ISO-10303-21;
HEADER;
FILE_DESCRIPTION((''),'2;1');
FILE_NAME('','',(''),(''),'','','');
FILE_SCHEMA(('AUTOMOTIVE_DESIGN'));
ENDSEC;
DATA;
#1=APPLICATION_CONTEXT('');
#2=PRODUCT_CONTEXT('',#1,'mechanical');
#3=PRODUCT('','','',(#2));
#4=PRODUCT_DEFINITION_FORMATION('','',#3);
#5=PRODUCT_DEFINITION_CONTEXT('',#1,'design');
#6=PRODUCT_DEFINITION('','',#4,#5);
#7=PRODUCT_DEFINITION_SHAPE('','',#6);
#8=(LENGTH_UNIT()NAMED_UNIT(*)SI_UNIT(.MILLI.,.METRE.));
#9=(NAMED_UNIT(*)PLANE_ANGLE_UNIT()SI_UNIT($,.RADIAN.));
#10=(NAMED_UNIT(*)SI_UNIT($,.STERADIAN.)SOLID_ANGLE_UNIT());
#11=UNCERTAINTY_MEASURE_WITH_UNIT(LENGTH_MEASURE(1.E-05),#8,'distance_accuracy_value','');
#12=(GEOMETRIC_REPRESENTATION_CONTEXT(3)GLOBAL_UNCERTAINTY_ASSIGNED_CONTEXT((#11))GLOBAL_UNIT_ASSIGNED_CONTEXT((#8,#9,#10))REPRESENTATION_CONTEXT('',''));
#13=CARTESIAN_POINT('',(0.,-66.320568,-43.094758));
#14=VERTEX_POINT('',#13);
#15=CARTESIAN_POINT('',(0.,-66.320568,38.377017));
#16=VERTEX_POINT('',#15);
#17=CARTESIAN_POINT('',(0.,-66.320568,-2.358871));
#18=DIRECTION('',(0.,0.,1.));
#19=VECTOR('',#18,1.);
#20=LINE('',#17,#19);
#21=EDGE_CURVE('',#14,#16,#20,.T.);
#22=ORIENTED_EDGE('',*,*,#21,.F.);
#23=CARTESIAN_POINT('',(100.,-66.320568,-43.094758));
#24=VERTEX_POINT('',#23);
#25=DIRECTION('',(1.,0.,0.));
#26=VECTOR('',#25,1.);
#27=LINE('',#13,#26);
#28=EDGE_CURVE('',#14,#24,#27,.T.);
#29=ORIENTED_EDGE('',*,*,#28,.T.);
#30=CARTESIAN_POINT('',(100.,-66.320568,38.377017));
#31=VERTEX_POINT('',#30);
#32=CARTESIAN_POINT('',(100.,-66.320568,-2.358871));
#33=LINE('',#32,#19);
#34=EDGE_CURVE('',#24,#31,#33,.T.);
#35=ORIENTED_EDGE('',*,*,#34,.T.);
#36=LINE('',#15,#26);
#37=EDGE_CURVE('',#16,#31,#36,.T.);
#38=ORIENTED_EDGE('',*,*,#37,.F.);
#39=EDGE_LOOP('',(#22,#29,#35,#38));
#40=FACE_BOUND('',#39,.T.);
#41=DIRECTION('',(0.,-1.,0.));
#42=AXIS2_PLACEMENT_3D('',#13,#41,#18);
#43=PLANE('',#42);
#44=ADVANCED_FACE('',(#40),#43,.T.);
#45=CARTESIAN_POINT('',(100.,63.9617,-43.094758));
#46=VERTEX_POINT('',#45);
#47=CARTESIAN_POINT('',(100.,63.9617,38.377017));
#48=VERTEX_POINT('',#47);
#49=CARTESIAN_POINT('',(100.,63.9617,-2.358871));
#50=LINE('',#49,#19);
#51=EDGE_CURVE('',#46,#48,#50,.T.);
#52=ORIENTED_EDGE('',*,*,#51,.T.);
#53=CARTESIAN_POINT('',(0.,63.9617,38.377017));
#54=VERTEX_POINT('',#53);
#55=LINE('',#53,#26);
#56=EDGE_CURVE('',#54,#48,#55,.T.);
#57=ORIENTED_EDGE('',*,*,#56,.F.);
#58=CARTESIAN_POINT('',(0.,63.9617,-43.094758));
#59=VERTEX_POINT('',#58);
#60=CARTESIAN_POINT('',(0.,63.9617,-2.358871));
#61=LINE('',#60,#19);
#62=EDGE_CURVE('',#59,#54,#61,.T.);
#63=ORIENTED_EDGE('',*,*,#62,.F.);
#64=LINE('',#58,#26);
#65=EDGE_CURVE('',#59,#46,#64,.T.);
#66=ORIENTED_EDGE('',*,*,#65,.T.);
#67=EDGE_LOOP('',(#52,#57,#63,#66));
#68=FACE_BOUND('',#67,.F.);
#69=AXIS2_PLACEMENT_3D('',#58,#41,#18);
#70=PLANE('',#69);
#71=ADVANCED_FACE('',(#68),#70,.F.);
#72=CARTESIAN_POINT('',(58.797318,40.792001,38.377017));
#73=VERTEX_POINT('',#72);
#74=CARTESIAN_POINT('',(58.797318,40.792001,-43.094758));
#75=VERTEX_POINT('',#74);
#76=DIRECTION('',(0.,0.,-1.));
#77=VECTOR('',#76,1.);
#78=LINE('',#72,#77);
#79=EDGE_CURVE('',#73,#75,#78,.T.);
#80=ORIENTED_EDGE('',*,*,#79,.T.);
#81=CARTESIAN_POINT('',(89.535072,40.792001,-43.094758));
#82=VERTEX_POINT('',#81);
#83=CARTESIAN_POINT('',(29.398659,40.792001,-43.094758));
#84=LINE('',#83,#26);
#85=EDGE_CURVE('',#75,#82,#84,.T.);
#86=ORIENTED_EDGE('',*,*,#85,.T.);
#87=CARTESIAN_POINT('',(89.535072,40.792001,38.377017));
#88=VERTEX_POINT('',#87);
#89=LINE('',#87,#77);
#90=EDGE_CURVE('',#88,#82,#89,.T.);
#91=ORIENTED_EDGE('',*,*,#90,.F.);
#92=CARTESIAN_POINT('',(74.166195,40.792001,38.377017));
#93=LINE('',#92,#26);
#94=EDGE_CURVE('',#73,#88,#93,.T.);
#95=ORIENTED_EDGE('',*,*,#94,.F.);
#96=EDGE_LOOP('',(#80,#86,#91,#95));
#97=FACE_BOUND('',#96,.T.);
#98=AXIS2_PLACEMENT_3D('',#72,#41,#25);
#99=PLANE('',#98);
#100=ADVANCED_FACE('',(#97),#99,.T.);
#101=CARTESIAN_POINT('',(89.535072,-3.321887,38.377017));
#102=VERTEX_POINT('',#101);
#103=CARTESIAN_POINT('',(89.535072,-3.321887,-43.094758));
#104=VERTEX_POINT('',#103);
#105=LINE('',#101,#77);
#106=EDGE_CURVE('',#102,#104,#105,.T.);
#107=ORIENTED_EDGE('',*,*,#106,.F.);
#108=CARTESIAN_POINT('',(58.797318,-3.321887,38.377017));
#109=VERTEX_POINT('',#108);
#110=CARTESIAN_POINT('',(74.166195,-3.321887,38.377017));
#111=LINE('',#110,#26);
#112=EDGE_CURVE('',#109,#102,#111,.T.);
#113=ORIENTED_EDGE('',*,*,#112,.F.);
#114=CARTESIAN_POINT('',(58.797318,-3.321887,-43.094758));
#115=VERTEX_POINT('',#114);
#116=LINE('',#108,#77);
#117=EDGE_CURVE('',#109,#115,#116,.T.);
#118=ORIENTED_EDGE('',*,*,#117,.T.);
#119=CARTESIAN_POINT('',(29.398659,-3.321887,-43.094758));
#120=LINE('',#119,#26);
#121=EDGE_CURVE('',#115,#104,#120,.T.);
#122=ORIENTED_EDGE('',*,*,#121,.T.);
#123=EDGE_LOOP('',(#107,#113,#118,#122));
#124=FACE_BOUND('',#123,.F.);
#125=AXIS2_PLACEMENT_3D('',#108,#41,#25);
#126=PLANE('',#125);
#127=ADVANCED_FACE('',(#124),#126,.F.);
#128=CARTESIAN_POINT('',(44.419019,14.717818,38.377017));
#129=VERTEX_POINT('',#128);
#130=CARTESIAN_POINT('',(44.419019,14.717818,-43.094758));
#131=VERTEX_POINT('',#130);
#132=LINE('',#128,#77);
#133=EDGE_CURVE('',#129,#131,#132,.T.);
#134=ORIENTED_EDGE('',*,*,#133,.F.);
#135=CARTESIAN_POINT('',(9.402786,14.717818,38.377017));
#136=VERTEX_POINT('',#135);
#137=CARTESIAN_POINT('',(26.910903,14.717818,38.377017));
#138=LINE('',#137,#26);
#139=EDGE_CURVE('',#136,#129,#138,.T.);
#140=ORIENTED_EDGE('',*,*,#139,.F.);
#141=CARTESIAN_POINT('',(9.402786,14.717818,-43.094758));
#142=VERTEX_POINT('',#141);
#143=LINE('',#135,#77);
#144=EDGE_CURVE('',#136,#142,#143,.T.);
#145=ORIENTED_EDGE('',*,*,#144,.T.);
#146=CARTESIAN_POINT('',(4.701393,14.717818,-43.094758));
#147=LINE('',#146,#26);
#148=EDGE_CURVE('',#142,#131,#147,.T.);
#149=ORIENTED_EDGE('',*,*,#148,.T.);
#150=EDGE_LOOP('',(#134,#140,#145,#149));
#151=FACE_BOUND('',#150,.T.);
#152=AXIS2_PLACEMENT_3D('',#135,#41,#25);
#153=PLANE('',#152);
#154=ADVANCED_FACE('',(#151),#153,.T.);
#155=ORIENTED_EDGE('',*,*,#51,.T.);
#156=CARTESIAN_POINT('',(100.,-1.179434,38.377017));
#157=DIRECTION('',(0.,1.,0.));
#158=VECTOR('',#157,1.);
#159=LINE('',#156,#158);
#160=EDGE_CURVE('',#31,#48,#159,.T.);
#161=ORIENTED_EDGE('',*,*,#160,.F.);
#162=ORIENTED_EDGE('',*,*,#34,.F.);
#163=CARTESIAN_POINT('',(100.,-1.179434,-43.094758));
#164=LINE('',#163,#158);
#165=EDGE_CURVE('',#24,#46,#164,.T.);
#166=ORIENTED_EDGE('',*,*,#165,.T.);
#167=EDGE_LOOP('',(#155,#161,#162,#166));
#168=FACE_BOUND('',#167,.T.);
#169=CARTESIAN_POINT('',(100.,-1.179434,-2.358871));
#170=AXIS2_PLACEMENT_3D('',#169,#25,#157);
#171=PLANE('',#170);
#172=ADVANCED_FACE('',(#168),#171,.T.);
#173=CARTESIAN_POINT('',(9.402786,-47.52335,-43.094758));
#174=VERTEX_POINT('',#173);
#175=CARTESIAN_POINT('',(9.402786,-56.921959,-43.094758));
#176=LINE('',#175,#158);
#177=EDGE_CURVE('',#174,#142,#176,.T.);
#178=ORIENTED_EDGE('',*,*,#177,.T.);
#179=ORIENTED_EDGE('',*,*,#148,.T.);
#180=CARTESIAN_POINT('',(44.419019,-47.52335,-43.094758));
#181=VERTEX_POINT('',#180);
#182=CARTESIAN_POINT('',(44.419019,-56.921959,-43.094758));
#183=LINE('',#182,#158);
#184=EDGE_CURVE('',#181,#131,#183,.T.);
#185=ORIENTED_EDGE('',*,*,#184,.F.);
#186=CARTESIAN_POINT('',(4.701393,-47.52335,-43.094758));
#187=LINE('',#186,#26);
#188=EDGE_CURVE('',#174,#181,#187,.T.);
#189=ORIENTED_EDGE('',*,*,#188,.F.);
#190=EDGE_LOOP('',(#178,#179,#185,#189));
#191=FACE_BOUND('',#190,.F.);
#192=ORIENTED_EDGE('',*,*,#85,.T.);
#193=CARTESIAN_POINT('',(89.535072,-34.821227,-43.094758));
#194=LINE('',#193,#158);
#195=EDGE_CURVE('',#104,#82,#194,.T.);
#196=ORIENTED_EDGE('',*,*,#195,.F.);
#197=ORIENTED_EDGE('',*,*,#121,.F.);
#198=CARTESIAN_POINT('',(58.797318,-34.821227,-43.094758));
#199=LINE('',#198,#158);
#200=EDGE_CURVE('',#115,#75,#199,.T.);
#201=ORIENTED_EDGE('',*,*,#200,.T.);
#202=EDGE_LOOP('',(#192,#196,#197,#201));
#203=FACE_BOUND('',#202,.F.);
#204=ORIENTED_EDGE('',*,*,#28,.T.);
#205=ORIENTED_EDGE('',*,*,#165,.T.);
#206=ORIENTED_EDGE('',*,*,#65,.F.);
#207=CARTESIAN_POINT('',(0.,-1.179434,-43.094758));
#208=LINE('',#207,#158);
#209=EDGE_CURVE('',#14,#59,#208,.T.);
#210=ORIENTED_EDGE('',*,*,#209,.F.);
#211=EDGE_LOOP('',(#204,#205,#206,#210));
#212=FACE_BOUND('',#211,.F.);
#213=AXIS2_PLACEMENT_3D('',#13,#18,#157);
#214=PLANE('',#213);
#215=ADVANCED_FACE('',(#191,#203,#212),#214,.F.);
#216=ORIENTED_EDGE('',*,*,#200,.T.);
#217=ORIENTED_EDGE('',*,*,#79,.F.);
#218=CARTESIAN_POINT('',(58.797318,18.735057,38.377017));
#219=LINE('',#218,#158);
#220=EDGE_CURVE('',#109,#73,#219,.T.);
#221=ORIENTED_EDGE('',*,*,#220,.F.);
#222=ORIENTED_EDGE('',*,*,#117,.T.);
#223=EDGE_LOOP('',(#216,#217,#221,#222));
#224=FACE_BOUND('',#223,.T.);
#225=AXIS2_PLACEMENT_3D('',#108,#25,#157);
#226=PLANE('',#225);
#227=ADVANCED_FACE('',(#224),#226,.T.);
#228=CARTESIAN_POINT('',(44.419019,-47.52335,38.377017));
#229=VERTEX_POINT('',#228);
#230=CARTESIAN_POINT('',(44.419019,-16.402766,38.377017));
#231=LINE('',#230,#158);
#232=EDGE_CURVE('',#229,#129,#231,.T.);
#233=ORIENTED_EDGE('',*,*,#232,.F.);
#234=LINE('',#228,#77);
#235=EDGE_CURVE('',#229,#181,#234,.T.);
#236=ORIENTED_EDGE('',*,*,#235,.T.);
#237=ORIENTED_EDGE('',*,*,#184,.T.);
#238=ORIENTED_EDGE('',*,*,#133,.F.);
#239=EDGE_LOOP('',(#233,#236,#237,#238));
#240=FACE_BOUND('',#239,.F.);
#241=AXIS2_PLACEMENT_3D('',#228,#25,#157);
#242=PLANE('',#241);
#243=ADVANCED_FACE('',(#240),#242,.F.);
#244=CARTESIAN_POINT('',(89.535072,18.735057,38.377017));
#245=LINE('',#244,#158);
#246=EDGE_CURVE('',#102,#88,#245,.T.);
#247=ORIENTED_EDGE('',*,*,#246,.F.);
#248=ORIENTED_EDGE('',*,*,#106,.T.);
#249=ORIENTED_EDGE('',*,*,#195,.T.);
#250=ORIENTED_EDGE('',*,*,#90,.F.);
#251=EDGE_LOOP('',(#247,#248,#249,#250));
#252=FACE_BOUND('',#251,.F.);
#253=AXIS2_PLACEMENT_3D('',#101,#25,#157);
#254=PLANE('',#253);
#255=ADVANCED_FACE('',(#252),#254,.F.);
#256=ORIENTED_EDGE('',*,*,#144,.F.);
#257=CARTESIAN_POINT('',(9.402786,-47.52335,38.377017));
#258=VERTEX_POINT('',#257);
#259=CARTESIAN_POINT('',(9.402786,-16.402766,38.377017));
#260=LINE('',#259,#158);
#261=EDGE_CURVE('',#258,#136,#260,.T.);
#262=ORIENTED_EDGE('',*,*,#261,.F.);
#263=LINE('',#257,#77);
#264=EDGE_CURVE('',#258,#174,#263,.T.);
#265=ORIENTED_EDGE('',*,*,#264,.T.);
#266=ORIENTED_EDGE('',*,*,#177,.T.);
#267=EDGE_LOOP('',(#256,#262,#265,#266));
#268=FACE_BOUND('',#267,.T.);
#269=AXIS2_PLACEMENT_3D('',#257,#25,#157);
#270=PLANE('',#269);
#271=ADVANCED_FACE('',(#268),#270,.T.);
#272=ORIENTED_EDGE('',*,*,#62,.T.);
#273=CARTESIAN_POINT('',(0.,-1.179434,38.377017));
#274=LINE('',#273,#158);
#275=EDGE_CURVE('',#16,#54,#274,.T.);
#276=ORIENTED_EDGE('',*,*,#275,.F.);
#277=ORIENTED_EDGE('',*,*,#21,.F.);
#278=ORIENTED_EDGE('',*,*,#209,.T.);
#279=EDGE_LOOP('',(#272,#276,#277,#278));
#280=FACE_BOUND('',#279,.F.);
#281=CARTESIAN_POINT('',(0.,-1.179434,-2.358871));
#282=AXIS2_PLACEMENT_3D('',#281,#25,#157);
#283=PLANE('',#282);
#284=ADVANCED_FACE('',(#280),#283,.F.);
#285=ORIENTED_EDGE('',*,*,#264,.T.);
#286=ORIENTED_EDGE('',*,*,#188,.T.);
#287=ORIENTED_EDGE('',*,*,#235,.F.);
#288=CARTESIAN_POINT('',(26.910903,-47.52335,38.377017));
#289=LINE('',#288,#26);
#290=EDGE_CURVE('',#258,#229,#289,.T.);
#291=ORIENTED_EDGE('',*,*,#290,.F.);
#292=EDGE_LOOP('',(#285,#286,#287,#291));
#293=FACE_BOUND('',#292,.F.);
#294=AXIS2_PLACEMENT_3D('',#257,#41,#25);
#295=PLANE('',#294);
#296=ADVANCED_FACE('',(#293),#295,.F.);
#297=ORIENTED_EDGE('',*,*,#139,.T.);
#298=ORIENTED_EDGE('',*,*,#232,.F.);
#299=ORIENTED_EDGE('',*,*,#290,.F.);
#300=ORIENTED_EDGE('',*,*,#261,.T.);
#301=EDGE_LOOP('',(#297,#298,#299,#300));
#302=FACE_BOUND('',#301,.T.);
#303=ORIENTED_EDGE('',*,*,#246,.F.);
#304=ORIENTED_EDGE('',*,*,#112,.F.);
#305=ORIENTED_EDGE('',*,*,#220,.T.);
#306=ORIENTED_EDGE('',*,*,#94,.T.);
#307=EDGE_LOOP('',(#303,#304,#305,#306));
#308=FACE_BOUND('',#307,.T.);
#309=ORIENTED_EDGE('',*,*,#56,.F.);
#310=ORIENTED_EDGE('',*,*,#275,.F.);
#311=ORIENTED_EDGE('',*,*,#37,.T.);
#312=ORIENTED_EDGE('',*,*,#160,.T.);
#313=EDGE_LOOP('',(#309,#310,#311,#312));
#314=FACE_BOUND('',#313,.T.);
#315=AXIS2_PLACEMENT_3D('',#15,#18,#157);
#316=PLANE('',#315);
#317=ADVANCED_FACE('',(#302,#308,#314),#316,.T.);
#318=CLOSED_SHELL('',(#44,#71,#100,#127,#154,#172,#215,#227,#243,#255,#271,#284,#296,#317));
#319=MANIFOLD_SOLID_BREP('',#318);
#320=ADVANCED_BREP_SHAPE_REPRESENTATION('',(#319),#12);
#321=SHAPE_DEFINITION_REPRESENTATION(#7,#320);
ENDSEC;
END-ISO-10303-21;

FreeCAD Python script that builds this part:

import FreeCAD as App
import Part
import Sketcher

V = App.Vector
Q = App.Units.Quantity

doc = App.newDocument("Part")
body = doc.addObject("PartDesign::Body", "Body")

sketch1 = body.newObject("Sketcher::SketchObject", "Sketch")
sketch1.AttachmentSupport = (doc.getObject("YZ_Plane"), [""])
sketch1.MapMode = "FlatFace"
sketch1.addGeometry([
    Part.LineSegment(V(-66, 38, 0), V(-66, -43, 0)),
    Part.LineSegment(V(-66, -43, 0), V(64, -43, 0)),
    Part.LineSegment(V(64, -43, 0), V(64, 38, 0)),
    Part.LineSegment(V(64, 38, 0), V(-66, 38, 0)),
], False)
sketch1.addConstraint([
    Sketcher.Constraint("Coincident", 0, 2, 1, 1),
    Sketcher.Constraint("Coincident", 1, 2, 2, 1),
    Sketcher.Constraint("Coincident", 2, 2, 3, 1),
    Sketcher.Constraint("Coincident", 3, 2, 0, 1),
    Sketcher.Constraint("Vertical", 0),
    Sketcher.Constraint("Horizontal", 1),
    Sketcher.Constraint("Vertical", 2),
    Sketcher.Constraint("Horizontal", 3),
    Sketcher.Constraint("DistanceX", -1, 1, 1, 2, Q("63.9617 mm")),
    Sketcher.Constraint("DistanceX", 1, 1, 1, 2, Q("130.282268 mm")),
    Sketcher.Constraint("DistanceY", 0, 2, 0, 1, Q("81.471775 mm")),
    Sketcher.Constraint("DistanceY", 0, 2, -1, 1, Q("43.094758 mm")),
])
pad1 = body.newObject("PartDesign::Pad", "Pad")
pad1.Profile = sketch1
pad1.Length = 100

sketch2 = body.newObject("Sketcher::SketchObject", "Sketch001")
sketch2.AttachmentSupport = (doc.getObject("XY_Plane"), [""])
sketch2.MapMode = "FlatFace"
sketch2.AttachmentOffset = App.Placement(V(0, 0, 38.377017), App.Rotation())
sketch2.addGeometry([
    Part.LineSegment(V(9, 15, 0), V(9, -48, 0)),
    Part.LineSegment(V(9, -48, 0), V(44, -48, 0)),
    Part.LineSegment(V(44, -48, 0), V(44, 15, 0)),
    Part.LineSegment(V(44, 15, 0), V(9, 15, 0)),
], False)
sketch2.addConstraint([
    Sketcher.Constraint("Coincident", 0, 2, 1, 1),
    Sketcher.Constraint("Coincident", 1, 2, 2, 1),
    Sketcher.Constraint("Coincident", 2, 2, 3, 1),
    Sketcher.Constraint("Coincident", 3, 2, 0, 1),
    Sketcher.Constraint("Vertical", 0),
    Sketcher.Constraint("Horizontal", 1),
    Sketcher.Constraint("Vertical", 2),
    Sketcher.Constraint("Horizontal", 3),
    Sketcher.Constraint("DistanceX", 1, 1, 1, 2, Q("35.016233 mm")),
    Sketcher.Constraint("DistanceY", 0, 2, 0, 1, Q("62.241167 mm")),
    Sketcher.Constraint("DistanceY", 0, 2, -1, 1, Q("47.52335 mm")),
    Sketcher.Constraint("DistanceX", -1, 1, 1, 2, Q("44.419019 mm")),
])
pocket1 = body.newObject("PartDesign::Pocket", "Pocket")
pocket1.Profile = sketch2
pocket1.Length = 100

sketch3 = body.newObject("Sketcher::SketchObject", "Sketch002")
sketch3.AttachmentSupport = (doc.getObject("XY_Plane"), [""])
sketch3.MapMode = "FlatFace"
sketch3.AttachmentOffset = App.Placement(V(0, 0, 38.377017), App.Rotation())
sketch3.addGeometry([
    Part.LineSegment(V(59, 41, 0), V(59, -3, 0)),
    Part.LineSegment(V(59, -3, 0), V(90, -3, 0)),
    Part.LineSegment(V(90, -3, 0), V(90, 41, 0)),
    Part.LineSegment(V(90, 41, 0), V(59, 41, 0)),
], False)
sketch3.addConstraint([
    Sketcher.Constraint("Coincident", 0, 2, 1, 1),
    Sketcher.Constraint("Coincident", 1, 2, 2, 1),
    Sketcher.Constraint("Coincident", 2, 2, 3, 1),
    Sketcher.Constraint("Coincident", 3, 2, 0, 1),
    Sketcher.Constraint("Vertical", 0),
    Sketcher.Constraint("Horizontal", 1),
    Sketcher.Constraint("Vertical", 2),
    Sketcher.Constraint("Horizontal", 3),
    Sketcher.Constraint("DistanceY", -1, 1, 2, 2, Q("40.792001 mm")),
    Sketcher.Constraint("DistanceX", 1, 1, 1, 2, Q("30.737754 mm")),
    Sketcher.Constraint("DistanceY", 0, 2, 0, 1, Q("44.113887 mm")),
    Sketcher.Constraint("DistanceX", -1, 1, 1, 2, Q("89.535072 mm")),
])
pocket2 = body.newObject("PartDesign::Pocket", "Pocket001")
pocket2.Profile = sketch3
pocket2.Length = 100

doc.recompute()
